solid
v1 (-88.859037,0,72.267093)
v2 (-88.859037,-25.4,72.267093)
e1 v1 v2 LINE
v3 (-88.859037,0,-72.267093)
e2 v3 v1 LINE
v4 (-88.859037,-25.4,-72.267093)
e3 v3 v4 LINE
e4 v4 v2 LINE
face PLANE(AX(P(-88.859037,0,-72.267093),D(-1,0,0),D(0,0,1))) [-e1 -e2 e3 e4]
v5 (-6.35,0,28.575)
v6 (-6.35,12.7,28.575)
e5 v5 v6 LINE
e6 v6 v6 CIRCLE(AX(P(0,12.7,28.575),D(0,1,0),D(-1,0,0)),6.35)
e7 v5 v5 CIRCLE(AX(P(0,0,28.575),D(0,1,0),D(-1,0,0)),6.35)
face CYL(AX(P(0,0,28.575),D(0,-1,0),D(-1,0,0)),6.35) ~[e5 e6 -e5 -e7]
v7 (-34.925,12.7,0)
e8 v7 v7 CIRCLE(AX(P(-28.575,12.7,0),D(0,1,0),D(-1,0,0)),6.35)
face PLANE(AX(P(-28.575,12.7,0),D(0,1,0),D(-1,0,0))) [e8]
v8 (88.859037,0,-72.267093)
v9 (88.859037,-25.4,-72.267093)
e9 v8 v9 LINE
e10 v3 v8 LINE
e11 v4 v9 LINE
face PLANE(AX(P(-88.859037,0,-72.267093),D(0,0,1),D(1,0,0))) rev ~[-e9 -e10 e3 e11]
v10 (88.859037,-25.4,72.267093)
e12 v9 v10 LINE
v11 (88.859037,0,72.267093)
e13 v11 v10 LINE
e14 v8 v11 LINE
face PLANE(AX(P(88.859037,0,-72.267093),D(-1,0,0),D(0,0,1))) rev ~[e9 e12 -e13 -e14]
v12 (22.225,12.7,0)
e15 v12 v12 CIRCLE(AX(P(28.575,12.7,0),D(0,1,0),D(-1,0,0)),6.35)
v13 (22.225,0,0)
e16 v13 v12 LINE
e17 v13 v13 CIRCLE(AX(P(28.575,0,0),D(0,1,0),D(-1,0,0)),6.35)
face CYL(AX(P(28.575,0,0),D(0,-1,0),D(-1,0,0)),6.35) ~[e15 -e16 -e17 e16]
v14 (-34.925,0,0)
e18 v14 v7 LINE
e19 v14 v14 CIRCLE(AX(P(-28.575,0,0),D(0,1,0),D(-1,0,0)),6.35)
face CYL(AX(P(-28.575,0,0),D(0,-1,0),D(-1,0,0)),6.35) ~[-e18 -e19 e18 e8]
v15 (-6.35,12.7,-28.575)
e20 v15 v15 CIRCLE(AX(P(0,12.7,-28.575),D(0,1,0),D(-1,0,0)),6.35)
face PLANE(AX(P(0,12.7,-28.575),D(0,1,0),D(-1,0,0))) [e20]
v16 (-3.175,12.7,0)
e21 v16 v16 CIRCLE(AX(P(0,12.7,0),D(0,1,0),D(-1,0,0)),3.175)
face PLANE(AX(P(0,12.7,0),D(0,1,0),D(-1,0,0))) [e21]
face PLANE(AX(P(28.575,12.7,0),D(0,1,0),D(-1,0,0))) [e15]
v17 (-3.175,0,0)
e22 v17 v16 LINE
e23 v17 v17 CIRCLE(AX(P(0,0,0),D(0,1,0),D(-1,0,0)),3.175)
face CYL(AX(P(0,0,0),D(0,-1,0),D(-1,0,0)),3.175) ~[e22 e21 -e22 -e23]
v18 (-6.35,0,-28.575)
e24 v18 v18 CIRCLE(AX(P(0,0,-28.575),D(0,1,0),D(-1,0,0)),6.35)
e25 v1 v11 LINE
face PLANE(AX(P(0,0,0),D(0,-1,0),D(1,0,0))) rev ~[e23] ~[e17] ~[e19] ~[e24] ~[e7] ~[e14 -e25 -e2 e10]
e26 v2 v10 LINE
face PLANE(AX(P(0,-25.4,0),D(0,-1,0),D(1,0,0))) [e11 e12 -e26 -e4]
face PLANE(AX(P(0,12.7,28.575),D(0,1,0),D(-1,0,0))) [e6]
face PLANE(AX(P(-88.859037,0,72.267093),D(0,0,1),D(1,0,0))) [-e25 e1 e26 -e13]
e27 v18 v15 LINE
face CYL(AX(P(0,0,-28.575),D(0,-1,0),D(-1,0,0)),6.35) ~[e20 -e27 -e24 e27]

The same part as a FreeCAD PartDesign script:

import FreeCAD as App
import Part
import Sketcher
from FreeCAD import Vector
Q = App.Units.Quantity

doc = App.newDocument("Part")
body = doc.addObject("PartDesign::Body", "Body")

# Sketch on XZ plane
sketch1 = body.newObject("Sketcher::SketchObject", "Sketch")
sketch1.AttachmentSupport = (doc.getObject("XZ_Plane"), [""])
sketch1.MapMode = "FlatFace"
sketch1.addGeometry([
    Part.LineSegment(Vector(-89, 72, 0), Vector(-89, -72, 0)),
    Part.LineSegment(Vector(-89, -72, 0), Vector(89, -72, 0)),
    Part.LineSegment(Vector(89, -72, 0), Vector(89, 72, 0)),
    Part.LineSegment(Vector(89, 72, 0), Vector(-89, 72, 0)),
], False)
sketch1.addConstraint([
    Sketcher.Constraint("Coincident", 0, 2, 1, 1),
    Sketcher.Constraint("Coincident", 1, 2, 2, 1),
    Sketcher.Constraint("Coincident", 2, 2, 3, 1),
    Sketcher.Constraint("Coincident", 3, 2, 0, 1),
    Sketcher.Constraint("Vertical", 0),
    Sketcher.Constraint("Horizontal", 1),
    Sketcher.Constraint("Vertical", 2),
    Sketcher.Constraint("Horizontal", 3),
    Sketcher.Constraint("Symmetric", 0, 2, 2, 2, -1, 1),
    Sketcher.Constraint("DistanceX", 1, 1, 1, 2, Q("177.718074 mm")),
    Sketcher.Constraint("DistanceY", 0, 2, 0, 1, Q("144.534186 mm")),
])
pad1 = body.newObject("PartDesign::Pad", "Pad")
pad1.Profile = sketch1
pad1.Length = Q("1 in")

# Sketch on XZ plane
sketch2 = body.newObject("Sketcher::SketchObject", "Sketch001")
sketch2.AttachmentSupport = (doc.getObject("XZ_Plane"), [""])
sketch2.MapMode = "FlatFace"
sketch2.addGeometry(Part.Circle(Vector(0, 0, 0), Vector(0, 0, 1), 3.2), False)
sketch2.addConstraint([
    Sketcher.Constraint("Coincident", 0, 3, -1, 1),
    Sketcher.Constraint("Diameter", 0, Q("0.25 in")),
])
pad2 = body.newObject("PartDesign::Pad", "Pad001")
pad2.Profile = sketch2
pad2.Length = Q("0.5 in")
pad2.Reversed = True

# Sketch on XZ plane
sketch3 = body.newObject("Sketcher::SketchObject", "Sketch002")
sketch3.AttachmentSupport = (doc.getObject("XZ_Plane"), [""])
sketch3.MapMode = "FlatFace"
sketch3.addGeometry([
    Part.Circle(Vector(29, 0, 0), Vector(0, 0, 1), 6),
    Part.Circle(Vector(0, 29, 0), Vector(0, 0, 1), 6),
    Part.Circle(Vector(-29, 0, 0), Vector(0, 0, 1), 6),
    Part.Circle(Vector(0, -29, 0), Vector(0, 0, 1), 6),
], False)
sketch3.addConstraint([
    Sketcher.Constraint("Equal", 0, 1),
    Sketcher.Constraint("Equal", 1, 2),
    Sketcher.Constraint("Equal", 2, 3),
    Sketcher.Constraint("Symmetric", 0, 3, 2, 3, -1, 1),
    Sketcher.Constraint("Symmetric", 1, 3, 3, 3, -1, 1),
    Sketcher.Constraint("PointOnObject", 0, 3, -1),
    Sketcher.Constraint("PointOnObject", 1, 3, -2),
    Sketcher.Constraint("Diameter", 0, Q("0.5 in")),
    Sketcher.Constraint("DistanceX", 2, 3, 0, 3, Q("2.25 in")),
    Sketcher.Constraint("DistanceY", 3, 3, 1, 3, Q("2.25 in")),
])
pad3 = body.newObject("PartDesign::Pad", "Pad002")
pad3.Profile = sketch3
pad3.Length = Q("0.5 in")
pad3.Reversed = True

doc.recompute()
